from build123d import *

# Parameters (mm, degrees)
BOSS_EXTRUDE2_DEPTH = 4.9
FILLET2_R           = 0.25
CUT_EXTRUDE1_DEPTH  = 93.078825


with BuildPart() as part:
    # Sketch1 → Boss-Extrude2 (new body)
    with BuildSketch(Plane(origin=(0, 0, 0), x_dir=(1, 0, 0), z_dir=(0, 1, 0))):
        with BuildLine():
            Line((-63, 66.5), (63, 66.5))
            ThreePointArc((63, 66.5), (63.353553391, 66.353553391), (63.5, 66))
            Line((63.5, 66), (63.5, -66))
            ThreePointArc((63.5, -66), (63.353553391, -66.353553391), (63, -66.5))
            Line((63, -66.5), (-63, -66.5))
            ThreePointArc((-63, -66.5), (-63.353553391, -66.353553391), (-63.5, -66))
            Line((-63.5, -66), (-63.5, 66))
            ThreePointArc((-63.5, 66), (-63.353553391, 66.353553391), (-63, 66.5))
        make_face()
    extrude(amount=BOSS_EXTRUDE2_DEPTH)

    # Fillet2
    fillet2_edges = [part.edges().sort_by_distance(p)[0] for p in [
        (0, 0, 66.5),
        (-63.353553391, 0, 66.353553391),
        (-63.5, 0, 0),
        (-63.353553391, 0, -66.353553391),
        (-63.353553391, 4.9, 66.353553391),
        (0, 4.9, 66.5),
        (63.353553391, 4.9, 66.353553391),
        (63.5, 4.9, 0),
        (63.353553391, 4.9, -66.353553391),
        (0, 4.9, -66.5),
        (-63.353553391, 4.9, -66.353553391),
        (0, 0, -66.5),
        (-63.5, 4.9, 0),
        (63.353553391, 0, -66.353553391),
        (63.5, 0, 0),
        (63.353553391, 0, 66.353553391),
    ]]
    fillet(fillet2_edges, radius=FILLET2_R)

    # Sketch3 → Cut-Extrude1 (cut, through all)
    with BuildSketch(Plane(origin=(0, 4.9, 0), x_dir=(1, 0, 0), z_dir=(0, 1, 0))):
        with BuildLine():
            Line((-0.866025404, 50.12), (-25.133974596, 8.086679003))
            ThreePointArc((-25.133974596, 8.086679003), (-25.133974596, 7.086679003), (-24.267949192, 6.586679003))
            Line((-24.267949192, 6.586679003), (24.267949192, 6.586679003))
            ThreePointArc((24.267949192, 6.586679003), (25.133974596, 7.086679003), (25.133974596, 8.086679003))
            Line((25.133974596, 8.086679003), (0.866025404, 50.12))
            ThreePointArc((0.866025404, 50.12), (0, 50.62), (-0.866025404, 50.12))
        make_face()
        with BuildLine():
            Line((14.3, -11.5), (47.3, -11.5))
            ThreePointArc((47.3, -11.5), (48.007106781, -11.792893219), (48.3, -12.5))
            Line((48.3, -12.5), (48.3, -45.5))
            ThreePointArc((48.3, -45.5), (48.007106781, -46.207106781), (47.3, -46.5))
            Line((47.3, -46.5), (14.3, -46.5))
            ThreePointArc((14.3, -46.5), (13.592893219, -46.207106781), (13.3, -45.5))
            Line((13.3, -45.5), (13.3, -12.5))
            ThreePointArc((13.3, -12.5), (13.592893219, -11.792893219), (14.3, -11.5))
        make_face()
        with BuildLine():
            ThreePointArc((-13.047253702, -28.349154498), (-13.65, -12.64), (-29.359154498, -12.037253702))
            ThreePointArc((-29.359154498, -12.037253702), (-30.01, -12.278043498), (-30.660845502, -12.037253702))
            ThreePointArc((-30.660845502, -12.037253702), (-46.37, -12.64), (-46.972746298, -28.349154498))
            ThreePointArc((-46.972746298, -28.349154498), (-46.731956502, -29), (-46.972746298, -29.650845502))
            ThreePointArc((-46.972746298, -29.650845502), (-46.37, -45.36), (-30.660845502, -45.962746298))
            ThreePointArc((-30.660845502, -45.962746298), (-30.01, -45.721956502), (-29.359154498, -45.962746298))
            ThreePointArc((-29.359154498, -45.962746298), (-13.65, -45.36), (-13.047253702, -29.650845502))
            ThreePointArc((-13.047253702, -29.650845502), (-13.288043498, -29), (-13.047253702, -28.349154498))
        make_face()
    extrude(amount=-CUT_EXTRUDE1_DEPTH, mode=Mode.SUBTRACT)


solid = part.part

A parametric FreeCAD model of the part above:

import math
import FreeCAD as App
import Part
import Sketcher

V = App.Vector
Q = App.Units.Quantity


def edges_at(feature, points):
    """Names of the edges that pass closest to the given points."""
    edges = feature.Shape.Edges
    near = lambda p: min(range(len(edges)), key=lambda i: edges[i].distToShape(Part.Vertex(*p))[0])
    return sorted({f"Edge{near(p) + 1}" for p in points})

doc = App.newDocument("Part")
body = doc.addObject("PartDesign::Body", "Body")

# Sketch on XZ plane
sketch1 = doc.addObject("Sketcher::SketchObject", "Sketch")
body.addObject(sketch1)
sketch1.AttachmentSupport = (doc.XZ_Plane, [""])
sketch1.MapMode = "FlatFace"
sketch1.addGeometry([
    Part.LineSegment(V(63, -66.5, 0), V(-63, -66.5, 0)),  # 0
    Part.ArcOfCircle(Part.Circle(V(-63, -66, 0), V(0, 0, 1), 0.5), math.radians(180), math.radians(270)),  # 1
    Part.LineSegment(V(-63.5, -66, 0), V(-63.5, 66, 0)),  # 2
    Part.ArcOfCircle(Part.Circle(V(-63, 66, 0), V(0, 0, 1), 0.5), math.radians(90), math.radians(180)),  # 3
    Part.LineSegment(V(-63, 66.5, 0), V(63, 66.5, 0)),  # 4
    Part.ArcOfCircle(Part.Circle(V(63, 66, 0), V(0, 0, 1), 0.5), math.radians(0), math.radians(90)),  # 5
    Part.LineSegment(V(63.5, 66, 0), V(63.5, -66, 0)),  # 6
    Part.ArcOfCircle(Part.Circle(V(63, -66, 0), V(0, 0, 1), 0.5), math.radians(-90), math.radians(0)),  # 7
], False)
sketch1.addConstraint([
    Sketcher.Constraint("Tangent", 0, 2, 1, 2),
    Sketcher.Constraint("Tangent", 1, 1, 2, 1),
    Sketcher.Constraint("Tangent", 2, 2, 3, 2),
    Sketcher.Constraint("Tangent", 3, 1, 4, 1),
    Sketcher.Constraint("Tangent", 4, 2, 5, 2),
    Sketcher.Constraint("Tangent", 5, 1, 6, 1),
    Sketcher.Constraint("Tangent", 6, 2, 7, 2),
    Sketcher.Constraint("Tangent", 7, 1, 0, 1),
    Sketcher.Constraint("Horizontal", 0),
    Sketcher.Constraint("Vertical", 2),
    Sketcher.Constraint("Horizontal", 4),
    Sketcher.Constraint("Vertical", 6),
    Sketcher.Constraint("Equal", 1, 3),
    Sketcher.Constraint("Equal", 3, 5),
    Sketcher.Constraint("Equal", 5, 7),
    Sketcher.Constraint("Symmetric", 1, 3, 5, 3, -1, 1),
    Sketcher.Constraint("Radius", 1, 0.5),
    Sketcher.Constraint("DistanceX", 0, 2, 0, 1, 126.0),
    Sketcher.Constraint("DistanceY", 2, 1, 2, 2, 132.0),
])
pad1 = doc.addObject("PartDesign::Pad", "Pad")
body.addObject(pad1)
pad1.Profile = sketch1
pad1.Length = 4.9
pad1.Reversed = True
doc.recompute()

fillet = doc.addObject("PartDesign::Fillet", "Fillet")
body.addObject(fillet)
fillet.Base = (pad1, edges_at(pad1, [
    (0, 0, 66.5),
    (-63.354, 0, 66.354),
    (-63.5, 0, 0),
    (-63.354, 0, -66.354),
    (-63.354, 4.9, 66.354),
    (0, 4.9, 66.5),
    (63.354, 4.9, 66.354),
    (63.5, 4.9, 0),
    (63.354, 4.9, -66.354),
    (0, 4.9, -66.5),
    (-63.354, 4.9, -66.354),
    (0, 0, -66.5),
    (-63.5, 4.9, 0),
    (63.354, 0, -66.354),
    (63.5, 0, 0),
    (63.354, 0, 66.354),
]))
fillet.Radius = 0.25

# Sketch on XZ plane
sketch2 = doc.addObject("Sketcher::SketchObject", "Sketch001")
body.addObject(sketch2)
sketch2.AttachmentSupport = (doc.XZ_Plane, [""])
sketch2.MapMode = "FlatFace"
sketch2.AttachmentOffset = App.Placement(V(0, 0, -4.9), App.Rotation())
sketch2.addGeometry([
    Part.LineSegment(V(-0.9, -50.1, 0), V(-25.1, -8.1, 0)),  # 0
    Part.ArcOfCircle(Part.Circle(V(-24.3, -7.6, 0), V(0, 0, 1), 1), math.radians(90), math.radians(210)),  # 1
    Part.LineSegment(V(-24.3, -6.6, 0), V(24.3, -6.6, 0)),  # 2
    Part.ArcOfCircle(Part.Circle(V(24.3, -7.6, 0), V(0, 0, 1), 1), math.radians(-30), math.radians(90)),  # 3
    Part.LineSegment(V(25.1, -8.1, 0), V(0.9, -50.1, 0)),  # 4
    Part.ArcOfCircle(Part.Circle(V(0, -49.6, 0), V(0, 0, 1), 1), math.radians(-150), math.radians(-30)),  # 5
    Part.LineSegment(V(47.3, 11.5, 0), V(14.3, 11.5, 0)),  # 6
    Part.ArcOfCircle(Part.Circle(V(14.3, 12.5, 0), V(0, 0, 1), 1), math.radians(-180), math.radians(-90)),  # 7
    Part.LineSegment(V(13.3, 12.5, 0), V(13.3, 45.5, 0)),  # 8
    Part.ArcOfCircle(Part.Circle(V(14.3, 45.5, 0), V(0, 0, 1), 1), math.radians(90), math.radians(180)),  # 9
    Part.LineSegment(V(14.3, 46.5, 0), V(47.3, 46.5, 0)),  # 10
    Part.ArcOfCircle(Part.Circle(V(47.3, 45.5, 0), V(0, 0, 1), 1), math.radians(0), math.radians(90)),  # 11
    Part.LineSegment(V(48.3, 45.5, 0), V(48.3, 12.5, 0)),  # 12
    Part.ArcOfCircle(Part.Circle(V(47.3, 12.5, 0), V(0, 0, 1), 1), math.radians(-90), math.radians(0)),  # 13
    Part.ArcOfCircle(Part.Circle(V(-21.8, 20.8, 0), V(0, 0, 1), 11.6), math.radians(-131), math.radians(41)),  # 14
    Part.ArcOfCircle(Part.Circle(V(-30, 11.3, 0), V(0, 0, 1), 1), math.radians(49), math.radians(131)),  # 15
    Part.ArcOfCircle(Part.Circle(V(-38.2, 20.8, 0), V(0, 0, 1), 11.6), math.radians(139), math.radians(311)),  # 16
    Part.ArcOfCircle(Part.Circle(V(-47.7, 29, 0), V(0, 0, 1), 1), math.radians(-41), math.radians(41)),  # 17
    Part.ArcOfCircle(Part.Circle(V(-38.2, 37.2, 0), V(0, 0, 1), 11.6), math.radians(49), math.radians(221)),  # 18
    Part.ArcOfCircle(Part.Circle(V(-30, 46.7, 0), V(0, 0, 1), 1), math.radians(-131), math.radians(-49)),  # 19
    Part.ArcOfCircle(Part.Circle(V(-21.8, 37.2, 0), V(0, 0, 1), 11.6), math.radians(-41), math.radians(131)),  # 20
    Part.ArcOfCircle(Part.Circle(V(-12.3, 29, 0), V(0, 0, 1), 1), math.radians(139), math.radians(221)),  # 21
], False)
sketch2.addConstraint([
    Sketcher.Constraint("Tangent", 0, 2, 1, 2),
    Sketcher.Constraint("Tangent", 1, 1, 2, 1),
    Sketcher.Constraint("Tangent", 2, 2, 3, 2),
    Sketcher.Constraint("Tangent", 3, 1, 4, 1),
    Sketcher.Constraint("Tangent", 4, 2, 5, 2),
    Sketcher.Constraint("Tangent", 5, 1, 0, 1),
    Sketcher.Constraint("Tangent", 6, 2, 7, 2),
    Sketcher.Constraint("Tangent", 7, 1, 8, 1),
    Sketcher.Constraint("Tangent", 8, 2, 9, 2),
    Sketcher.Constraint("Tangent", 9, 1, 10, 1),
    Sketcher.Constraint("Tangent", 10, 2, 11, 2),
    Sketcher.Constraint("Tangent", 11, 1, 12, 1),
    Sketcher.Constraint("Tangent", 12, 2, 13, 2),
    Sketcher.Constraint("Tangent", 13, 1, 6, 1),
    Sketcher.Constraint("Tangent", 14, 1, 15, 1),
    Sketcher.Constraint("Tangent", 15, 2, 16, 2),
    Sketcher.Constraint("Tangent", 16, 1, 17, 1),
    Sketcher.Constraint("Tangent", 17, 2, 18, 2),
    Sketcher.Constraint("Tangent", 18, 1, 19, 1),
    Sketcher.Constraint("Tangent", 19, 2, 20, 2),
    Sketcher.Constraint("Tangent", 20, 1, 21, 1),
    Sketcher.Constraint("Tangent", 21, 2, 14, 2),
    Sketcher.Constraint("Horizontal", 2),
    Sketcher.Constraint("Horizontal", 6),
    Sketcher.Constraint("Vertical", 8),
    Sketcher.Constraint("Horizontal", 10),
    Sketcher.Constraint("Vertical", 12),
    Sketcher.Constraint("Equal", 1, 3),
    Sketcher.Constraint("Equal", 3, 5),
    Sketcher.Constraint("Equal", 5, 7),
    Sketcher.Constraint("Equal", 7, 9),
    Sketcher.Constraint("Equal", 9, 11),
    Sketcher.Constraint("Equal", 11, 13),
    Sketcher.Constraint("Equal", 13, 15),
    Sketcher.Constraint("Equal", 14, 16),
    Sketcher.Constraint("Equal", 15, 17),
    Sketcher.Constraint("Equal", 16, 18),
    Sketcher.Constraint("Equal", 17, 19),
    Sketcher.Constraint("Equal", 18, 20),
    Sketcher.Constraint("Equal", 19, 21),
    Sketcher.Constraint("Symmetric", 0, 2, 3, 1, -2),
    Sketcher.Constraint("Horizontal", 14, 3, 16, 3),
    Sketcher.Constraint("Horizontal", 18, 3, 20, 3),
    Sketcher.Constraint("Horizontal", 17, 3, 21, 3),
    Sketcher.Constraint("Vertical", 16, 3, 18, 3),
    Sketcher.Constraint("Equal", 10, 8),
    Sketcher.Constraint("Radius", 1, 1.0),
    Sketcher.Constraint("DistanceX", 6, 2, 6, 1, 33.0),
    Sketcher.Constraint("Angle", 0, Q("120 deg")),
    Sketcher.Constraint("DistanceY", -1, 1, 17, 3, 29.0),
    Sketcher.Constraint("DistanceX", -1, 1, 7, 3, 14.3),
    Sketcher.Constraint("DistanceY", -1, 1, 7, 3, 12.5),
    Sketcher.Constraint("DistanceY", 5, 3, -1, 1, 49.62),
    Sketcher.Constraint("DistanceX", 14, 3, -1, 1, 21.83),
    Sketcher.Constraint("DistanceY", -1, 1, 14, 3, 20.82),
    Sketcher.Constraint("DistanceX", 15, 3, -1, 1, 30.01),
    Sketcher.Constraint("DistanceX", 2, 1, 2, 2, 48.535898),
    Sketcher.Constraint("Radius", 14, 11.568267),
])
pocket1 = doc.addObject("PartDesign::Pocket", "Pocket")
body.addObject(pocket1)
pocket1.Profile = sketch2
pocket1.Type = "ThroughAll"
pocket1.Reversed = True

doc.recompute()
